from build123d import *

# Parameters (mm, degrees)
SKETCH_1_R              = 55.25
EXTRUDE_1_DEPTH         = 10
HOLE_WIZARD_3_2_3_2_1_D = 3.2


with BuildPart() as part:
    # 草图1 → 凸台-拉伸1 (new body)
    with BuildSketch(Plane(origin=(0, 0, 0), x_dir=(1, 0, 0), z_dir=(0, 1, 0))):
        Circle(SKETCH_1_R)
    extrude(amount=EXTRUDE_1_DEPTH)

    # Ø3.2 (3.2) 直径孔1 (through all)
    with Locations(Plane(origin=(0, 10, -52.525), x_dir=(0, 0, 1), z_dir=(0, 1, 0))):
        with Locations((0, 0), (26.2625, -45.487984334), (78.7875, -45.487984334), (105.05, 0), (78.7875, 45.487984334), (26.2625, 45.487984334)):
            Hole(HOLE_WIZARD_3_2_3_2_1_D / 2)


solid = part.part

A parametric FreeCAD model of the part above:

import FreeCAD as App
import Part
import Sketcher
Q = App.Units.Quantity

doc = App.newDocument("Part")
params = doc.addObject("Spreadsheet::Sheet", "Params")
for row, (alias, value) in enumerate([
    ("sketch1_diameter", "110.5 mm"),
    ("pad1_length", "10 mm"),
    ("sketch2_diameter", "3.2 mm"),
    ("hole_diameter", "3.2 mm"),
], start=1):
    params.set(f"A{row}", alias)
    params.set(f"B{row}", "=" + value)
    params.setAlias(f"B{row}", alias)

body = doc.addObject("PartDesign::Body", "Body")

# Sketch on XZ plane
sketch1 = body.newObject("Sketcher::SketchObject", "Sketch")
sketch1.AttachmentSupport = (doc.getObject("XZ_Plane"), [""])
sketch1.MapMode = "FlatFace"
sketch1.addGeometry(Part.Circle(App.Vector(0, 0, 0), App.Vector(0, 0, 1), 55), False)
sketch1.addConstraint(Sketcher.Constraint("Coincident", 0, 3, -1, 1))
sketch1.addConstraint(Sketcher.Constraint("Diameter", 0, Q("110.5 mm")))
sketch1.setExpression("Constraints[1]", "Params.sketch1_diameter")
pad1 = body.newObject("PartDesign::Pad", "Pad")
pad1.Profile = sketch1
pad1.setExpression("Length", "Params.pad1_length")
pad1.Reversed = True

# Sketch on XZ plane
sketch2 = body.newObject("Sketcher::SketchObject", "Sketch001")
sketch2.AttachmentSupport = (doc.getObject("XZ_Plane"), [""])
sketch2.MapMode = "FlatFace"
sketch2.AttachmentOffset = App.Placement(App.Vector(0, 0, -10), App.Rotation())
sketch2.addGeometry(Part.Circle(App.Vector(0, -52.5, 0), App.Vector(0, 0, 1), 1.6), False)
sketch2.addGeometry(Part.Circle(App.Vector(-45.5, -26.3, 0), App.Vector(0, 0, 1), 1.6), False)
sketch2.addGeometry(Part.Circle(App.Vector(-45.5, 26.3, 0), App.Vector(0, 0, 1), 1.6), False)
sketch2.addGeometry(Part.Circle(App.Vector(0, 52.5, 0), App.Vector(0, 0, 1), 1.6), False)
sketch2.addGeometry(Part.Circle(App.Vector(45.5, 26.3, 0), App.Vector(0, 0, 1), 1.6), False)
sketch2.addGeometry(Part.Circle(App.Vector(45.5, -26.3, 0), App.Vector(0, 0, 1), 1.6), False)
sketch2.addConstraint(Sketcher.Constraint("Equal", 0, 1))
sketch2.addConstraint(Sketcher.Constraint("Equal", 1, 2))
sketch2.addConstraint(Sketcher.Constraint("Equal", 2, 3))
sketch2.addConstraint(Sketcher.Constraint("Equal", 3, 4))
sketch2.addConstraint(Sketcher.Constraint("Equal", 4, 5))
sketch2.addConstraint(Sketcher.Constraint("Symmetric", 0, 3, 3, 3, -1, 1))
sketch2.addConstraint(Sketcher.Constraint("Symmetric", 1, 3, 4, 3, -1, 1))
sketch2.addConstraint(Sketcher.Constraint("Symmetric", 2, 3, 5, 3, -1, 1))
sketch2.addConstraint(Sketcher.Constraint("Symmetric", 2, 3, 4, 3, -2))
sketch2.addConstraint(Sketcher.Constraint("PointOnObject", 0, 3, -2))
sketch2.addConstraint(Sketcher.Constraint("Diameter", 0, Q("3.2 mm")))
sketch2.addConstraint(Sketcher.Constraint("DistanceY", 0, 3, 3, 3, Q("105.05 mm")))
sketch2.addConstraint(Sketcher.Constraint("DistanceY", 1, 3, 2, 3, Q("52.525 mm")))
sketch2.addConstraint(Sketcher.Constraint("DistanceX", 2, 3, 4, 3, Q("90.975969 mm")))
sketch2.setExpression("Constraints[10]", "Params.sketch2_diameter")
doc.recompute()
hole = body.newObject("PartDesign::Hole", "Hole")
hole.Profile = sketch2
hole.ThreadType = "None"
hole.setExpression("Diameter", "Params.hole_diameter")
hole.DepthType = "ThroughAll"
hole.Reversed = True

doc.recompute()
